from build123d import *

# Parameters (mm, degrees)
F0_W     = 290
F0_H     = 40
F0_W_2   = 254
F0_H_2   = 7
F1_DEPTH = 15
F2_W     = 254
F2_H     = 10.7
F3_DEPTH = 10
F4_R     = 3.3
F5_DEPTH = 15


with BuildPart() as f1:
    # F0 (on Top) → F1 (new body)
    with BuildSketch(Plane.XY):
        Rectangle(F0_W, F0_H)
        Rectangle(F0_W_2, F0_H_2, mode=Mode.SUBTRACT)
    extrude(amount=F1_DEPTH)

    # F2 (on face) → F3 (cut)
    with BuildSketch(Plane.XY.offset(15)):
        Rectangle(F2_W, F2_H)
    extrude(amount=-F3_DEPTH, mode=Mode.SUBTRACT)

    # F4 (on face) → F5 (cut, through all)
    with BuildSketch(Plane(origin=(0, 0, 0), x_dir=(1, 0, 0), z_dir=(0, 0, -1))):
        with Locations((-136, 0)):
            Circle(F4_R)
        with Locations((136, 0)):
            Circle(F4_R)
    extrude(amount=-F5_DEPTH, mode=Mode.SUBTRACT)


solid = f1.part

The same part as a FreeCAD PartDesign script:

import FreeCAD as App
import Part
import Sketcher

V = App.Vector
Q = App.Units.Quantity

doc = App.newDocument("Part")
params = doc.addObject("Spreadsheet::Sheet", "Params")
for row, (alias, value) in enumerate([
    ("sketch1_width", "290 mm"),
    ("sketch1_width2", "254 mm"),
    ("sketch1_height", "40 mm"),
    ("sketch1_height2", "7 mm"),
    ("pad1_length", "15 mm"),
    ("sketch2_width", "254 mm"),
    ("sketch2_height", "10.7 mm"),
    ("pocket1_length", "10 mm"),
    ("sketch3_diameter", "6.6 mm"),
], start=1):
    params.set(f"A{row}", alias)
    params.set(f"B{row}", "=" + value)
    params.setAlias(f"B{row}", alias)

body = doc.addObject("PartDesign::Body", "Body")

# Sketch on XY plane
sketch1 = doc.addObject("Sketcher::SketchObject", "Sketch")
body.addObject(sketch1)
sketch1.AttachmentSupport = (doc.XY_Plane, [""])
sketch1.MapMode = "FlatFace"
sketch1.addGeometry([
    Part.LineSegment(V(-145, 20, 0), V(-145, -20, 0)),  # 0
    Part.LineSegment(V(-145, -20, 0), V(145, -20, 0)),  # 1
    Part.LineSegment(V(145, -20, 0), V(145, 20, 0)),  # 2
    Part.LineSegment(V(145, 20, 0), V(-145, 20, 0)),  # 3
    Part.LineSegment(V(127, -4, 0), V(-127, -4, 0)),  # 4
    Part.LineSegment(V(-127, -4, 0), V(-127, 4, 0)),  # 5
    Part.LineSegment(V(-127, 4, 0), V(127, 4, 0)),  # 6
    Part.LineSegment(V(127, 4, 0), V(127, -4, 0)),  # 7
], False)
sketch1.addConstraint([
    Sketcher.Constraint("Coincident", 0, 2, 1, 1),
    Sketcher.Constraint("Coincident", 1, 2, 2, 1),
    Sketcher.Constraint("Coincident", 2, 2, 3, 1),
    Sketcher.Constraint("Coincident", 3, 2, 0, 1),
    Sketcher.Constraint("Coincident", 4, 2, 5, 1),
    Sketcher.Constraint("Coincident", 5, 2, 6, 1),
    Sketcher.Constraint("Coincident", 6, 2, 7, 1),
    Sketcher.Constraint("Coincident", 7, 2, 4, 1),
    Sketcher.Constraint("Vertical", 0),
    Sketcher.Constraint("Horizontal", 1),
    Sketcher.Constraint("Vertical", 2),
    Sketcher.Constraint("Horizontal", 3),
    Sketcher.Constraint("Horizontal", 4),
    Sketcher.Constraint("Vertical", 5),
    Sketcher.Constraint("Horizontal", 6),
    Sketcher.Constraint("Vertical", 7),
    Sketcher.Constraint("Symmetric", 0, 2, 2, 2, -1, 1),
    Sketcher.Constraint("Symmetric", 4, 2, 6, 2, -1, 1),
    Sketcher.Constraint("DistanceX", 1, 1, 1, 2, Q("290 mm")),
    Sketcher.Constraint("DistanceX", 4, 2, 4, 1, Q("254 mm")),
    Sketcher.Constraint("DistanceY", 0, 2, 0, 1, Q("40 mm")),
    Sketcher.Constraint("DistanceY", 5, 1, 5, 2, Q("7 mm")),
])
sketch1.setExpression("Constraints[18]", "Params.sketch1_width")
sketch1.setExpression("Constraints[19]", "Params.sketch1_width2")
sketch1.setExpression("Constraints[20]", "Params.sketch1_height")
sketch1.setExpression("Constraints[21]", "Params.sketch1_height2")
pad1 = doc.addObject("PartDesign::Pad", "Pad")
body.addObject(pad1)
pad1.Profile = sketch1
pad1.setExpression("Length", "Params.pad1_length")

# Sketch on XY plane
sketch2 = doc.addObject("Sketcher::SketchObject", "Sketch001")
body.addObject(sketch2)
sketch2.AttachmentSupport = (doc.XY_Plane, [""])
sketch2.MapMode = "FlatFace"
sketch2.AttachmentOffset = App.Placement(V(0, 0, 15), App.Rotation())
sketch2.addGeometry([
    Part.LineSegment(V(-127, 5, 0), V(-127, -5, 0)),
    Part.LineSegment(V(-127, -5, 0), V(127, -5, 0)),
    Part.LineSegment(V(127, -5, 0), V(127, 5, 0)),
    Part.LineSegment(V(127, 5, 0), V(-127, 5, 0)),
], False)
sketch2.addConstraint([
    Sketcher.Constraint("Coincident", 0, 2, 1, 1),
    Sketcher.Constraint("Coincident", 1, 2, 2, 1),
    Sketcher.Constraint("Coincident", 2, 2, 3, 1),
    Sketcher.Constraint("Coincident", 3, 2, 0, 1),
    Sketcher.Constraint("Vertical", 0),
    Sketcher.Constraint("Horizontal", 1),
    Sketcher.Constraint("Vertical", 2),
    Sketcher.Constraint("Horizontal", 3),
    Sketcher.Constraint("Symmetric", 0, 2, 2, 2, -1, 1),
    Sketcher.Constraint("DistanceX", 1, 1, 1, 2, Q("254 mm")),
    Sketcher.Constraint("DistanceY", 0, 2, 0, 1, Q("10.7 mm")),
])
sketch2.setExpression("Constraints[9]", "Params.sketch2_width")
sketch2.setExpression("Constraints[10]", "Params.sketch2_height")
pocket1 = doc.addObject("PartDesign::Pocket", "Pocket")
body.addObject(pocket1)
pocket1.Profile = sketch2
pocket1.setExpression("Length", "Params.pocket1_length")

# Sketch on XY plane
sketch3 = doc.addObject("Sketcher::SketchObject", "Sketch002")
body.addObject(sketch3)
sketch3.AttachmentSupport = (doc.XY_Plane, [""])
sketch3.MapMode = "FlatFace"
sketch3.addGeometry([
    Part.Circle(V(-136, 0, 0), V(0, 0, 1), 3.3),
    Part.Circle(V(136, 0, 0), V(0, 0, 1), 3.3),
], False)
sketch3.addConstraint([
    Sketcher.Constraint("Equal", 0, 1),
    Sketcher.Constraint("Symmetric", 0, 3, 1, 3, -1, 1),
    Sketcher.Constraint("PointOnObject", 0, 3, -1),
    Sketcher.Constraint("Diameter", 0, Q("6.6 mm")),
    Sketcher.Constraint("DistanceX", 0, 3, -1, 1, Q("136 mm")),
])
sketch3.setExpression("Constraints[3]", "Params.sketch3_diameter")
pocket2 = doc.addObject("PartDesign::Pocket", "Pocket001")
body.addObject(pocket2)
pocket2.Profile = sketch3
pocket2.Type = "ThroughAll"
pocket2.Reversed = True

doc.recompute()
